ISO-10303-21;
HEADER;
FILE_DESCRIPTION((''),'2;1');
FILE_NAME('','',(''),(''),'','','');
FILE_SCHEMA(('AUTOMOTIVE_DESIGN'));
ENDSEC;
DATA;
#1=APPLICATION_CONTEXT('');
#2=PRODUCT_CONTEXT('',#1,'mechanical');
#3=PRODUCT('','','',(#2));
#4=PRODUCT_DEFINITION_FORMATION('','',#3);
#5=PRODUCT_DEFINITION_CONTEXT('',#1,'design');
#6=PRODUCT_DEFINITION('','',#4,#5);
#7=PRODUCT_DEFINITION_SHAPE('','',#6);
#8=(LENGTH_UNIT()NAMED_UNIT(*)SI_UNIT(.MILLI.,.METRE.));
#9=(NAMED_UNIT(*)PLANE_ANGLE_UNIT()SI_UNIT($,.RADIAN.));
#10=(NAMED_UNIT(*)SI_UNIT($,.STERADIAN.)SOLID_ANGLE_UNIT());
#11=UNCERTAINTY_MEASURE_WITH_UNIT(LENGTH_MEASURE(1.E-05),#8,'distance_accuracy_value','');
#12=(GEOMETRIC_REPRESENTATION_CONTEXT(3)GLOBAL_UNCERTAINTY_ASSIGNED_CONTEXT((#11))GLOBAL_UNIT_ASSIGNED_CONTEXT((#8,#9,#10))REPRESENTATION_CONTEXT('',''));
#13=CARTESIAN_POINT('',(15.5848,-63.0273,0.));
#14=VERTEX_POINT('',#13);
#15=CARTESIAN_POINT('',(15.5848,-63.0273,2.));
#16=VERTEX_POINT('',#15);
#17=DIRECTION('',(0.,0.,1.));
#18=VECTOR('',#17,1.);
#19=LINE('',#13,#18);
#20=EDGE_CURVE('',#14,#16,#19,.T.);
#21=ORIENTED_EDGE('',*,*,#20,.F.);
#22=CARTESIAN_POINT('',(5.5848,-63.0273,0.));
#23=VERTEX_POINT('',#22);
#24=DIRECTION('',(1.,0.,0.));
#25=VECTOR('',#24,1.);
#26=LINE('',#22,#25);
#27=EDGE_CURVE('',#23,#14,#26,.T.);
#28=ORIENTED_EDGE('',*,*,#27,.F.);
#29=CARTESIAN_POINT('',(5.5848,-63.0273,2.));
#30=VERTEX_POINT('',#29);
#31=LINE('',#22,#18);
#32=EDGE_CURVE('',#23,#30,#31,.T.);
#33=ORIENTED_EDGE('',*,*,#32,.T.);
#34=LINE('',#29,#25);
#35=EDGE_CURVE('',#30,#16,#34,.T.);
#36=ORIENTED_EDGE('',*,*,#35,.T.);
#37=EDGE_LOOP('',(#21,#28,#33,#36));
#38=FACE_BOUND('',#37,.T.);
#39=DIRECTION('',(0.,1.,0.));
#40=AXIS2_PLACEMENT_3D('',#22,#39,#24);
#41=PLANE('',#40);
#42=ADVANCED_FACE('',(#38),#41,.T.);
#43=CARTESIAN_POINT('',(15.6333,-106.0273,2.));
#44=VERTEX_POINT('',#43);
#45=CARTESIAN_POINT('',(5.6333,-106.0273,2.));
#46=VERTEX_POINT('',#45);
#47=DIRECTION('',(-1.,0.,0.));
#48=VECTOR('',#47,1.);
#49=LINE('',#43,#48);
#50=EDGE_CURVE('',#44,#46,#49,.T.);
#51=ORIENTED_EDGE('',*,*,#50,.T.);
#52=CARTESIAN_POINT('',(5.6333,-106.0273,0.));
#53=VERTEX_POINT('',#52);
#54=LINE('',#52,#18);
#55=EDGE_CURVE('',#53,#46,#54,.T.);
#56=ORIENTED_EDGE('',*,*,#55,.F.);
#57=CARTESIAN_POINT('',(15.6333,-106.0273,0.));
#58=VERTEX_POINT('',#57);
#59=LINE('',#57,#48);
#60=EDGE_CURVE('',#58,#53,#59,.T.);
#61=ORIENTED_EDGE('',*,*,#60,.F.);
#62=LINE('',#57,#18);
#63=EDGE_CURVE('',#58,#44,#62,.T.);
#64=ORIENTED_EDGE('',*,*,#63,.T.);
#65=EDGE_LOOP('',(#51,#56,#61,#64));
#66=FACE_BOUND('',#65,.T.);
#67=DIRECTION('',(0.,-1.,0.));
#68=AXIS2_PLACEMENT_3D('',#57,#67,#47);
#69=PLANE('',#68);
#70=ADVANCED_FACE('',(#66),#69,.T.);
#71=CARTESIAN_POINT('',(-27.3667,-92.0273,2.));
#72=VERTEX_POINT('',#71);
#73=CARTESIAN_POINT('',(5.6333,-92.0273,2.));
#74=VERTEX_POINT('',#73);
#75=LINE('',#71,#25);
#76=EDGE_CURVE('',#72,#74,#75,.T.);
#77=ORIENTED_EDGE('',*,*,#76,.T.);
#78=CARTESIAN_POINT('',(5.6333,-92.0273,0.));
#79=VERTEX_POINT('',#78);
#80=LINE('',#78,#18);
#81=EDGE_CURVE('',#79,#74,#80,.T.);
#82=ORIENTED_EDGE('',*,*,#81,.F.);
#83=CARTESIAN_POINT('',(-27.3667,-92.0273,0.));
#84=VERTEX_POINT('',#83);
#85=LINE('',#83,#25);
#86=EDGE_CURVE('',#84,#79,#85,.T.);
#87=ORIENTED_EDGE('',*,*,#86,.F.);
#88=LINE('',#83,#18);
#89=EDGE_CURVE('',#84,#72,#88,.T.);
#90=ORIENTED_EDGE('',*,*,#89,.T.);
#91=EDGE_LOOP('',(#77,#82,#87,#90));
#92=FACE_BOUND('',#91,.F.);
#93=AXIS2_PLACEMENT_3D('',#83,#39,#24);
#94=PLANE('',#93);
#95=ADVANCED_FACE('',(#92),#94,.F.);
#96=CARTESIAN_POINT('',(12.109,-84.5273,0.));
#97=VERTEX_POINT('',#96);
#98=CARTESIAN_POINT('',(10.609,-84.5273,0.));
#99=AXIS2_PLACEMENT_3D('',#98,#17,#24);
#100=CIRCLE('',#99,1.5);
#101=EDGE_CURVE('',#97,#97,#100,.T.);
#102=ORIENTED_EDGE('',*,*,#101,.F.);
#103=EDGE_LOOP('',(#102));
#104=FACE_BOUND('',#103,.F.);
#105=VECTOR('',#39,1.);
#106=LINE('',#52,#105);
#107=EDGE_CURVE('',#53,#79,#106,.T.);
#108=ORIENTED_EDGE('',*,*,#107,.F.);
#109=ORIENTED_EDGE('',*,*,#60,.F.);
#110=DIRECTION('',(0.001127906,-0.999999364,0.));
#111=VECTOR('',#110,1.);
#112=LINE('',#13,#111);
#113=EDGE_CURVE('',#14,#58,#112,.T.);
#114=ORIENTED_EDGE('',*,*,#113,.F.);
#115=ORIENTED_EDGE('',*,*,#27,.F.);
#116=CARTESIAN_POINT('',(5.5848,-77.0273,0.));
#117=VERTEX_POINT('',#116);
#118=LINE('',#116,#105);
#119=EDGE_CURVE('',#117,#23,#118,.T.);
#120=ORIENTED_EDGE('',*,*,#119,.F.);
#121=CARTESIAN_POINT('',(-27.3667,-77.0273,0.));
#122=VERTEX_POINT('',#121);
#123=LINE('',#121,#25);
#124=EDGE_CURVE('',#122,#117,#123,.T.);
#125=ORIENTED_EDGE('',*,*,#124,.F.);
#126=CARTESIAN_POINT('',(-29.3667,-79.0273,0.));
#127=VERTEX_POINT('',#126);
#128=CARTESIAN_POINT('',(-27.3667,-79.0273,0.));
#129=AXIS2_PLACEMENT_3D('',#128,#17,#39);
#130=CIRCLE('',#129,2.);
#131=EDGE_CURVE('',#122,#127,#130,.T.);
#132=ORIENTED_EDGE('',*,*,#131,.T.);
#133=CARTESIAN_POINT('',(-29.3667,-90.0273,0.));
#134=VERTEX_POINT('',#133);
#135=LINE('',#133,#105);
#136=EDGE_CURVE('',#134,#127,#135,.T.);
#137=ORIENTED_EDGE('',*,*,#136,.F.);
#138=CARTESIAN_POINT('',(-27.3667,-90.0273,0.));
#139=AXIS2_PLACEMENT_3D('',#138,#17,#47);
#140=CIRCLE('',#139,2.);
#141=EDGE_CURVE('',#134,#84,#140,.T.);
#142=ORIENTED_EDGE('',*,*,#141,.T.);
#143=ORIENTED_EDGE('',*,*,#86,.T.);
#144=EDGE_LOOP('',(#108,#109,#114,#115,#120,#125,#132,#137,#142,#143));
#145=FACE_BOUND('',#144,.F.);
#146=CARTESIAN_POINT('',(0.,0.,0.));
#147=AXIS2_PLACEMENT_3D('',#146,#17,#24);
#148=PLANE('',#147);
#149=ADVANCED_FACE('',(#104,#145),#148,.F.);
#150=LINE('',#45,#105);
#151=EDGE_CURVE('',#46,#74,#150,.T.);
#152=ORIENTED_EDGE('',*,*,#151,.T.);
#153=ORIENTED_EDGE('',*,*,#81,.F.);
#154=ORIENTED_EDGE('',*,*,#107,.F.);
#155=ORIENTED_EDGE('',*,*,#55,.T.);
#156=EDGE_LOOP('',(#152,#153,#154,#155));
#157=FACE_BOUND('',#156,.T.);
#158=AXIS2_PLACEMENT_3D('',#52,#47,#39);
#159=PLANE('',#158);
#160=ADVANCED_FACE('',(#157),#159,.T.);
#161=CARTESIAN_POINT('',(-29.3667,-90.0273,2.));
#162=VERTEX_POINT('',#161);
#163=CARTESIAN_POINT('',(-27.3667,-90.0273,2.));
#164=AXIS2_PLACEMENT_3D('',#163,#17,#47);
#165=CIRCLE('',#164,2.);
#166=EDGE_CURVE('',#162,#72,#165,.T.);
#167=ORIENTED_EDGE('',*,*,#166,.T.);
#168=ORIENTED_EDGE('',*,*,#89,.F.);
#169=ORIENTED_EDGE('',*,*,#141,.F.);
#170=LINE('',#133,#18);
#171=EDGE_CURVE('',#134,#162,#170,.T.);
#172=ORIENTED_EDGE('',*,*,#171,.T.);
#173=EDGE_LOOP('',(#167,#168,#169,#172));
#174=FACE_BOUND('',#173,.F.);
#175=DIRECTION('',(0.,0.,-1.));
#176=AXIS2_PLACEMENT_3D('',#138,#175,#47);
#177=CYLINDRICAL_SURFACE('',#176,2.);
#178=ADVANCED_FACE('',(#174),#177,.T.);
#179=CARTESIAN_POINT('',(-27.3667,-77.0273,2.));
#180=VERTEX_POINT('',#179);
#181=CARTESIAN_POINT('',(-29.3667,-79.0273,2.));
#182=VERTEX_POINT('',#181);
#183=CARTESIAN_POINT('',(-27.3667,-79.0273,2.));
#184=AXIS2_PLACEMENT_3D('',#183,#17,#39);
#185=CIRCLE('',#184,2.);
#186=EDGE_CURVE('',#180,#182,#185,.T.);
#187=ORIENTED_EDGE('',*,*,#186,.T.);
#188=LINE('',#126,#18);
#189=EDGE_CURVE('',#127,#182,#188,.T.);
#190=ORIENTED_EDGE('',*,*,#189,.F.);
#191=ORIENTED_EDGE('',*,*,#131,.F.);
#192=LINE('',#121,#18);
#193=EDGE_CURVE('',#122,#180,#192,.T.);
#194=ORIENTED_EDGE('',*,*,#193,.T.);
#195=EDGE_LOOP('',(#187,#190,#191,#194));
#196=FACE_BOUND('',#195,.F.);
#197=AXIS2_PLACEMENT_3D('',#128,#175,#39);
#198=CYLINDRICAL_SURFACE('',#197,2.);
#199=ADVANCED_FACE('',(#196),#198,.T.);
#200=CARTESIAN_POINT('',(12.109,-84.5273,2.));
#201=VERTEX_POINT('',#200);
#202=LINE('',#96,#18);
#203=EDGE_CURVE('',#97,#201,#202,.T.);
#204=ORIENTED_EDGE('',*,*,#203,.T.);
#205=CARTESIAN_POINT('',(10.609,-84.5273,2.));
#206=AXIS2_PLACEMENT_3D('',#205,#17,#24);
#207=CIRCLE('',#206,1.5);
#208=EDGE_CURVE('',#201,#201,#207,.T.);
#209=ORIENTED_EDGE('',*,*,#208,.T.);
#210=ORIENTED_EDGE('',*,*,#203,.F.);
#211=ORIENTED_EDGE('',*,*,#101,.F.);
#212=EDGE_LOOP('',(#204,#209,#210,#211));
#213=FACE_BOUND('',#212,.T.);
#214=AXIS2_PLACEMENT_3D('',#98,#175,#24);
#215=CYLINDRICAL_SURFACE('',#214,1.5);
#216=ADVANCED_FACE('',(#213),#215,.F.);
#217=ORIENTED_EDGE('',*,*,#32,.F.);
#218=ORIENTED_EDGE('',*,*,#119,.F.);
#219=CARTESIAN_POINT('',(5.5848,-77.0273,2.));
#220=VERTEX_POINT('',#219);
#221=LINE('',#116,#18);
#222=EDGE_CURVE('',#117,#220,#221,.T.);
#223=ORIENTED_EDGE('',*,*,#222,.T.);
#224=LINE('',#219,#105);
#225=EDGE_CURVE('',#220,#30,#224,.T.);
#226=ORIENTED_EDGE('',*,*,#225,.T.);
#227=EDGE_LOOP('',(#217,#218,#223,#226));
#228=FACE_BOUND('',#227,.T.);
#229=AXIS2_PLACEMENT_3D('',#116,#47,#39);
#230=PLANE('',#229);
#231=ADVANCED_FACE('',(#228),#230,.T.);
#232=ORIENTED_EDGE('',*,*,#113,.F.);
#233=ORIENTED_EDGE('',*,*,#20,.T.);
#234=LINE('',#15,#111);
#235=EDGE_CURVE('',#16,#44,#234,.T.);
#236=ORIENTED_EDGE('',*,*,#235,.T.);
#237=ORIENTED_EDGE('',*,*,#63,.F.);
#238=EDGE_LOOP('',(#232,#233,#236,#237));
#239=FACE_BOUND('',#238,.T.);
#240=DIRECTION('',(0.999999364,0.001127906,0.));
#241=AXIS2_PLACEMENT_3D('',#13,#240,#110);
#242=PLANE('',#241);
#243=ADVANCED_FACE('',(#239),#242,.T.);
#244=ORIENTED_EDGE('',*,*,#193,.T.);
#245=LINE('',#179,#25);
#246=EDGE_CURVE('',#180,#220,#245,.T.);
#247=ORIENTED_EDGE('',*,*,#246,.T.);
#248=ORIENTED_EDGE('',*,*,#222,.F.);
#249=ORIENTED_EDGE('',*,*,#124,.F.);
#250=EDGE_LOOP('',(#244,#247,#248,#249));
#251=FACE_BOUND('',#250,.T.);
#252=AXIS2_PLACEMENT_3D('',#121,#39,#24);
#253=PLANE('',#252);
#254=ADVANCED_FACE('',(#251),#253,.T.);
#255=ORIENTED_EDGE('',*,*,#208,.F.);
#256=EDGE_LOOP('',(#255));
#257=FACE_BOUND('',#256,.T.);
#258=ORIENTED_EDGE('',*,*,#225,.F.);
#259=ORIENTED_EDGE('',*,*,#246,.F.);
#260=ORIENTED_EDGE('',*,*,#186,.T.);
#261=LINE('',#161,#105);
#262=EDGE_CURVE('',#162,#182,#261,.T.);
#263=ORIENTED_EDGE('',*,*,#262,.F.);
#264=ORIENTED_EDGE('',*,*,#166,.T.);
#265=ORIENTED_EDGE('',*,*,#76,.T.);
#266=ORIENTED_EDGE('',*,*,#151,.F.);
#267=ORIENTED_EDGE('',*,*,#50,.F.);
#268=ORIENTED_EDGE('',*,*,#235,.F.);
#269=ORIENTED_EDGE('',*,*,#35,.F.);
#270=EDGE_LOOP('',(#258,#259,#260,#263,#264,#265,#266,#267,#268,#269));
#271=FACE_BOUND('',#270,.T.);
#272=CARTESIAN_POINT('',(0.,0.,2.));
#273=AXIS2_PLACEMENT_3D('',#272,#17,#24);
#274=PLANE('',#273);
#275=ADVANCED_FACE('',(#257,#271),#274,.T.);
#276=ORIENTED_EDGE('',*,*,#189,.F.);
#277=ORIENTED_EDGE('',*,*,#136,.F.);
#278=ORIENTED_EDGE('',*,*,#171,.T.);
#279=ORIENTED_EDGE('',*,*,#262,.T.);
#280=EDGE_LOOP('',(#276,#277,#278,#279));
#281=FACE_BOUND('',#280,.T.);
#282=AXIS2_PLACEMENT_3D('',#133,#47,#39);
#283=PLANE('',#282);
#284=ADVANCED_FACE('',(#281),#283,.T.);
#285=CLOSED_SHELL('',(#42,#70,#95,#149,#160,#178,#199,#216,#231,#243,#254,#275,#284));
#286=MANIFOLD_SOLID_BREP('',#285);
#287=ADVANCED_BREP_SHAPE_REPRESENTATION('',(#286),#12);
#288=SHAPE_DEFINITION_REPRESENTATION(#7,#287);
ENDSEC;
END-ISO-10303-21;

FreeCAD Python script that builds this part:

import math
import FreeCAD as App
import Part
import Sketcher
from FreeCAD import Vector

doc = App.newDocument("Part")
body = doc.addObject("PartDesign::Body", "Body")

# Sketch on XY plane
sketch1 = body.newObject("Sketcher::SketchObject", "Sketch")
sketch1.AttachmentSupport = (doc.getObject("XY_Plane"), [""])
sketch1.MapMode = "FlatFace"
sketch1.addGeometry(Part.LineSegment(Vector(-29.4, -79, 0), Vector(-29.4, -90, 0)), False)
sketch1.addGeometry(Part.ArcOfCircle(Part.Circle(Vector(-27.4, -90, 0), Vector(0, 0, 1), 2), math.radians(180), math.radians(270)), False)
sketch1.addGeometry(Part.LineSegment(Vector(-27.4, -92, 0), Vector(5.6, -92, 0)), False)
sketch1.addGeometry(Part.LineSegment(Vector(5.6, -92, 0), Vector(5.6, -106, 0)), False)
sketch1.addGeometry(Part.LineSegment(Vector(5.6, -106, 0), Vector(15.6, -106, 0)), False)
sketch1.addGeometry(Part.LineSegment(Vector(15.6, -106, 0), Vector(15.6, -63, 0)), False)
sketch1.addGeometry(Part.LineSegment(Vector(15.6, -63, 0), Vector(5.6, -63, 0)), False)
sketch1.addGeometry(Part.LineSegment(Vector(5.6, -63, 0), Vector(5.6, -77, 0)), False)
sketch1.addGeometry(Part.LineSegment(Vector(5.6, -77, 0), Vector(-27.4, -77, 0)), False)
sketch1.addGeometry(Part.ArcOfCircle(Part.Circle(Vector(-27.4, -79, 0), Vector(0, 0, 1), 2), math.radians(90), math.radians(180)), False)
sketch1.addGeometry(Part.Circle(Vector(10.6, -84.5, 0), Vector(0, 0, 1), 1.5), False)
sketch1.addConstraint(Sketcher.Constraint("Tangent", 0, 2, 1, 1))
sketch1.addConstraint(Sketcher.Constraint("Tangent", 1, 2, 2, 1))
sketch1.addConstraint(Sketcher.Constraint("Coincident", 2, 2, 3, 1))
sketch1.addConstraint(Sketcher.Constraint("Coincident", 3, 2, 4, 1))
sketch1.addConstraint(Sketcher.Constraint("Coincident", 4, 2, 5, 1))
sketch1.addConstraint(Sketcher.Constraint("Coincident", 5, 2, 6, 1))
sketch1.addConstraint(Sketcher.Constraint("Coincident", 6, 2, 7, 1))
sketch1.addConstraint(Sketcher.Constraint("Coincident", 7, 2, 8, 1))
sketch1.addConstraint(Sketcher.Constraint("Tangent", 8, 2, 9, 1))
sketch1.addConstraint(Sketcher.Constraint("Tangent", 9, 2, 0, 1))
sketch1.addConstraint(Sketcher.Constraint("Vertical", 0))
sketch1.addConstraint(Sketcher.Constraint("Horizontal", 2))
sketch1.addConstraint(Sketcher.Constraint("Vertical", 3))
sketch1.addConstraint(Sketcher.Constraint("Horizontal", 4))
sketch1.addConstraint(Sketcher.Constraint("Horizontal", 6))
sketch1.addConstraint(Sketcher.Constraint("Vertical", 7))
sketch1.addConstraint(Sketcher.Constraint("Horizontal", 8))
sketch1.addConstraint(Sketcher.Constraint("Equal", 1, 9))
sketch1.addConstraint(Sketcher.Constraint("Equal", 4, 6))
sketch1.addConstraint(Sketcher.Constraint("Equal", 3, 7))
sketch1.addConstraint(Sketcher.Constraint("Diameter", 10, 3.0))
sketch1.addConstraint(Sketcher.Constraint("Radius", 1, 2.0))
sketch1.addConstraint(Sketcher.Constraint("DistanceX", 4, 1, 4, 2, 10.0))
sketch1.addConstraint(Sketcher.Constraint("DistanceY", 3, 2, 3, 1, 14.0))
sketch1.addConstraint(Sketcher.Constraint("Distance", 5, 43.0))
sketch1.addConstraint(Sketcher.Constraint("DistanceX", 0, 2, 2, 2, 35.0))
sketch1.addConstraint(Sketcher.Constraint("DistanceY", 3, 2, 10, 3, 21.5))
sketch1.addConstraint(Sketcher.Constraint("DistanceX", 8, 2, 8, 1, 32.9515))
sketch1.addConstraint(Sketcher.Constraint("DistanceX", -1, 1, 10, 3, 10.609))
sketch1.addConstraint(Sketcher.Constraint("DistanceX", 1, 3, -1, 1, 27.3667))
sketch1.addConstraint(Sketcher.Constraint("DistanceY", 1, 3, -1, 1, 90.0273))
pad1 = body.newObject("PartDesign::Pad", "Pad")
pad1.Profile = sketch1
pad1.Length = 2

doc.recompute()
